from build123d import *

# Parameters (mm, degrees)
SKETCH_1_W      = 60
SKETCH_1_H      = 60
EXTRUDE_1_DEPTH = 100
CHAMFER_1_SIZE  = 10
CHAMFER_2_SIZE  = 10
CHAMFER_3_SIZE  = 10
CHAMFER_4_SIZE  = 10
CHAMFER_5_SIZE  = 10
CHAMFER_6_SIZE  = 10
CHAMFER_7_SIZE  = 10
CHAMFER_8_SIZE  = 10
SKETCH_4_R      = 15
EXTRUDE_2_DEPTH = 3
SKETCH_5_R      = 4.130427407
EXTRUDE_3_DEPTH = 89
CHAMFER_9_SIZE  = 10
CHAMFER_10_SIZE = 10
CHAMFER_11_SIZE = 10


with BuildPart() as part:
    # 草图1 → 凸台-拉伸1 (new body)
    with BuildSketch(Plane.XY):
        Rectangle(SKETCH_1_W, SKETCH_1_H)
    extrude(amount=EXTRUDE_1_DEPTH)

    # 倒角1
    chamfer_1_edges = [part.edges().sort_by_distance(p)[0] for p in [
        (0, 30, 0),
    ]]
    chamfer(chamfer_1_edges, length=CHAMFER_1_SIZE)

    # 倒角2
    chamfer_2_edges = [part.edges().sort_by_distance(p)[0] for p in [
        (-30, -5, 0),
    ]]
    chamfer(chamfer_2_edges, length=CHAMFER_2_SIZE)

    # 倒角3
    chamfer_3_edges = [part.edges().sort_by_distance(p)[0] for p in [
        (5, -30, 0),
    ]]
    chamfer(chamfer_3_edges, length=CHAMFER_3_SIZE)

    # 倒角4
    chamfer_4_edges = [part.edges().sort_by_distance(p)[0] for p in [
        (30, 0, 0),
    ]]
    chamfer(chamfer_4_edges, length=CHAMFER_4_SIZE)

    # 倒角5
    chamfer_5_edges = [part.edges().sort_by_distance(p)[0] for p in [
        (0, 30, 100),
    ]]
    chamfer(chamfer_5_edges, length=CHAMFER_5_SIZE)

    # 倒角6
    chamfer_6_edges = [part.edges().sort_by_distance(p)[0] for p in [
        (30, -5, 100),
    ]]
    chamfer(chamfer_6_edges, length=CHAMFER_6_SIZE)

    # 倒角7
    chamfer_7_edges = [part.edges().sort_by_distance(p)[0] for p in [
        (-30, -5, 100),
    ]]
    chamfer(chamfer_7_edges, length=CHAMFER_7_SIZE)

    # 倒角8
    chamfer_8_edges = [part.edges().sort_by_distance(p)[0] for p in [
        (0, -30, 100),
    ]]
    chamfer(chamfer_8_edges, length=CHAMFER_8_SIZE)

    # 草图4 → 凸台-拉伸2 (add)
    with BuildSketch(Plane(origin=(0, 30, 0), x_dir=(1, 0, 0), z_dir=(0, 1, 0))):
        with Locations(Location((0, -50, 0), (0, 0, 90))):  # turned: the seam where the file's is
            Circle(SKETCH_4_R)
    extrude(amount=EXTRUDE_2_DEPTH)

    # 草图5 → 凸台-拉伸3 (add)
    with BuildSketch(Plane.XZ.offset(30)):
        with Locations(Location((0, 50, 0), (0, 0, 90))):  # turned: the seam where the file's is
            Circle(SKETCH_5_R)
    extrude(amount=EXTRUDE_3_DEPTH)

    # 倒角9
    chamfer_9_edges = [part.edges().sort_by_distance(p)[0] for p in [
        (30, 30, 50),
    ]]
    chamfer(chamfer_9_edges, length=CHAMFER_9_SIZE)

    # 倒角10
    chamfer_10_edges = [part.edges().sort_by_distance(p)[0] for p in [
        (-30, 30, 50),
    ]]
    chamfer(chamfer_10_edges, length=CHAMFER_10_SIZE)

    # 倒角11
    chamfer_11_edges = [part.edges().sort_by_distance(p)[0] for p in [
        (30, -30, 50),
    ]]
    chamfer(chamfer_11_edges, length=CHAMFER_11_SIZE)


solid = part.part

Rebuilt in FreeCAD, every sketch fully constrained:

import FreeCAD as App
import Part
import Sketcher


def edges_at(feature, points):
    """Names of the edges that pass closest to the given points."""
    edges = feature.Shape.Edges
    near = lambda p: min(range(len(edges)), key=lambda i: edges[i].distToShape(Part.Vertex(*p))[0])
    return sorted({f"Edge{near(p) + 1}" for p in points})

doc = App.newDocument("Part")
body = doc.addObject("PartDesign::Body", "Body")

sketch1 = body.newObject("Sketcher::SketchObject", "Sketch")
sketch1.AttachmentSupport = (doc.getObject("XY_Plane"), [""])
sketch1.MapMode = "FlatFace"
sketch1.addGeometry([
    Part.LineSegment(App.Vector(-30, 30, 0), App.Vector(-30, -30, 0)),
    Part.LineSegment(App.Vector(-30, -30, 0), App.Vector(30, -30, 0)),
    Part.LineSegment(App.Vector(30, -30, 0), App.Vector(30, 30, 0)),
    Part.LineSegment(App.Vector(30, 30, 0), App.Vector(-30, 30, 0)),
], False)
sketch1.addConstraint([
    Sketcher.Constraint("Coincident", 0, 2, 1, 1),
    Sketcher.Constraint("Coincident", 1, 2, 2, 1),
    Sketcher.Constraint("Coincident", 2, 2, 3, 1),
    Sketcher.Constraint("Coincident", 3, 2, 0, 1),
    Sketcher.Constraint("Vertical", 0),
    Sketcher.Constraint("Horizontal", 1),
    Sketcher.Constraint("Vertical", 2),
    Sketcher.Constraint("Horizontal", 3),
    Sketcher.Constraint("Symmetric", 0, 2, 2, 2, -1, 1),
    Sketcher.Constraint("Equal", 3, 0),
    Sketcher.Constraint("DistanceX", 1, 1, 1, 2, 60.0),
])
pad1 = body.newObject("PartDesign::Pad", "Pad")
pad1.Profile = sketch1
pad1.Length = 100
doc.recompute()

chamfer = body.newObject("PartDesign::Chamfer", "Chamfer")
chamfer.Base = (pad1, edges_at(pad1, [(0, 30, 0)]))
chamfer.Size = 10
doc.recompute()

chamfer2 = body.newObject("PartDesign::Chamfer", "Chamfer001")
chamfer2.Base = (chamfer, edges_at(chamfer, [(-30, -5, 0)]))
chamfer2.Size = 10
doc.recompute()

chamfer3 = body.newObject("PartDesign::Chamfer", "Chamfer002")
chamfer3.Base = (chamfer2, edges_at(chamfer2, [(5, -30, 0)]))
chamfer3.Size = 10
doc.recompute()

chamfer4 = body.newObject("PartDesign::Chamfer", "Chamfer003")
chamfer4.Base = (chamfer3, edges_at(chamfer3, [(30, 0, 0)]))
chamfer4.Size = 10
doc.recompute()

chamfer5 = body.newObject("PartDesign::Chamfer", "Chamfer004")
chamfer5.Base = (chamfer4, edges_at(chamfer4, [(0, 30, 100)]))
chamfer5.Size = 10
doc.recompute()

chamfer6 = body.newObject("PartDesign::Chamfer", "Chamfer005")
chamfer6.Base = (chamfer5, edges_at(chamfer5, [(30, -5, 100)]))
chamfer6.Size = 10
doc.recompute()

chamfer7 = body.newObject("PartDesign::Chamfer", "Chamfer006")
chamfer7.Base = (chamfer6, edges_at(chamfer6, [(-30, -5, 100)]))
chamfer7.Size = 10
doc.recompute()

chamfer8 = body.newObject("PartDesign::Chamfer", "Chamfer007")
chamfer8.Base = (chamfer7, edges_at(chamfer7, [(0, -30, 100)]))
chamfer8.Size = 10

sketch2 = body.newObject("Sketcher::SketchObject", "Sketch001")
sketch2.AttachmentSupport = (doc.getObject("XZ_Plane"), [""])
sketch2.MapMode = "FlatFace"
sketch2.AttachmentOffset = App.Placement(App.Vector(0, 0, -30), App.Rotation())
sketch2.addGeometry(Part.Circle(App.Vector(0, 50, 0), App.Vector(0, 0, 1), 15), False)
sketch2.addConstraint([
    Sketcher.Constraint("PointOnObject", 0, 3, -2),
    Sketcher.Constraint("Diameter", 0, 30.0),
    Sketcher.Constraint("DistanceY", -1, 1, 0, 3, 50.0),
])
pad2 = body.newObject("PartDesign::Pad", "Pad001")
pad2.Profile = sketch2
pad2.Length = 3
pad2.Reversed = True

sketch3 = body.newObject("Sketcher::SketchObject", "Sketch002")
sketch3.AttachmentSupport = (doc.getObject("XZ_Plane"), [""])
sketch3.MapMode = "FlatFace"
sketch3.AttachmentOffset = App.Placement(App.Vector(0, 0, 30), App.Rotation())
sketch3.addGeometry(Part.Circle(App.Vector(0, 50, 0), App.Vector(0, 0, 1), 4.1), False)
sketch3.addConstraint([
    Sketcher.Constraint("PointOnObject", 0, 3, -2),
    Sketcher.Constraint("DistanceY", -1, 1, 0, 3, 50.0),
    Sketcher.Constraint("Diameter", 0, 8.260855),
])
pad3 = body.newObject("PartDesign::Pad", "Pad002")
pad3.Profile = sketch3
pad3.Length = 89
doc.recompute()

chamfer9 = body.newObject("PartDesign::Chamfer", "Chamfer008")
chamfer9.Base = (pad3, edges_at(pad3, [(30, 30, 50)]))
chamfer9.Size = 10
doc.recompute()

chamfer10 = body.newObject("PartDesign::Chamfer", "Chamfer009")
chamfer10.Base = (chamfer9, edges_at(chamfer9, [(-30, 30, 50)]))
chamfer10.Size = 10
doc.recompute()

chamfer11 = body.newObject("PartDesign::Chamfer", "Chamfer010")
chamfer11.Base = (chamfer10, edges_at(chamfer10, [(30, -30, 50)]))
chamfer11.Size = 10

doc.recompute()
